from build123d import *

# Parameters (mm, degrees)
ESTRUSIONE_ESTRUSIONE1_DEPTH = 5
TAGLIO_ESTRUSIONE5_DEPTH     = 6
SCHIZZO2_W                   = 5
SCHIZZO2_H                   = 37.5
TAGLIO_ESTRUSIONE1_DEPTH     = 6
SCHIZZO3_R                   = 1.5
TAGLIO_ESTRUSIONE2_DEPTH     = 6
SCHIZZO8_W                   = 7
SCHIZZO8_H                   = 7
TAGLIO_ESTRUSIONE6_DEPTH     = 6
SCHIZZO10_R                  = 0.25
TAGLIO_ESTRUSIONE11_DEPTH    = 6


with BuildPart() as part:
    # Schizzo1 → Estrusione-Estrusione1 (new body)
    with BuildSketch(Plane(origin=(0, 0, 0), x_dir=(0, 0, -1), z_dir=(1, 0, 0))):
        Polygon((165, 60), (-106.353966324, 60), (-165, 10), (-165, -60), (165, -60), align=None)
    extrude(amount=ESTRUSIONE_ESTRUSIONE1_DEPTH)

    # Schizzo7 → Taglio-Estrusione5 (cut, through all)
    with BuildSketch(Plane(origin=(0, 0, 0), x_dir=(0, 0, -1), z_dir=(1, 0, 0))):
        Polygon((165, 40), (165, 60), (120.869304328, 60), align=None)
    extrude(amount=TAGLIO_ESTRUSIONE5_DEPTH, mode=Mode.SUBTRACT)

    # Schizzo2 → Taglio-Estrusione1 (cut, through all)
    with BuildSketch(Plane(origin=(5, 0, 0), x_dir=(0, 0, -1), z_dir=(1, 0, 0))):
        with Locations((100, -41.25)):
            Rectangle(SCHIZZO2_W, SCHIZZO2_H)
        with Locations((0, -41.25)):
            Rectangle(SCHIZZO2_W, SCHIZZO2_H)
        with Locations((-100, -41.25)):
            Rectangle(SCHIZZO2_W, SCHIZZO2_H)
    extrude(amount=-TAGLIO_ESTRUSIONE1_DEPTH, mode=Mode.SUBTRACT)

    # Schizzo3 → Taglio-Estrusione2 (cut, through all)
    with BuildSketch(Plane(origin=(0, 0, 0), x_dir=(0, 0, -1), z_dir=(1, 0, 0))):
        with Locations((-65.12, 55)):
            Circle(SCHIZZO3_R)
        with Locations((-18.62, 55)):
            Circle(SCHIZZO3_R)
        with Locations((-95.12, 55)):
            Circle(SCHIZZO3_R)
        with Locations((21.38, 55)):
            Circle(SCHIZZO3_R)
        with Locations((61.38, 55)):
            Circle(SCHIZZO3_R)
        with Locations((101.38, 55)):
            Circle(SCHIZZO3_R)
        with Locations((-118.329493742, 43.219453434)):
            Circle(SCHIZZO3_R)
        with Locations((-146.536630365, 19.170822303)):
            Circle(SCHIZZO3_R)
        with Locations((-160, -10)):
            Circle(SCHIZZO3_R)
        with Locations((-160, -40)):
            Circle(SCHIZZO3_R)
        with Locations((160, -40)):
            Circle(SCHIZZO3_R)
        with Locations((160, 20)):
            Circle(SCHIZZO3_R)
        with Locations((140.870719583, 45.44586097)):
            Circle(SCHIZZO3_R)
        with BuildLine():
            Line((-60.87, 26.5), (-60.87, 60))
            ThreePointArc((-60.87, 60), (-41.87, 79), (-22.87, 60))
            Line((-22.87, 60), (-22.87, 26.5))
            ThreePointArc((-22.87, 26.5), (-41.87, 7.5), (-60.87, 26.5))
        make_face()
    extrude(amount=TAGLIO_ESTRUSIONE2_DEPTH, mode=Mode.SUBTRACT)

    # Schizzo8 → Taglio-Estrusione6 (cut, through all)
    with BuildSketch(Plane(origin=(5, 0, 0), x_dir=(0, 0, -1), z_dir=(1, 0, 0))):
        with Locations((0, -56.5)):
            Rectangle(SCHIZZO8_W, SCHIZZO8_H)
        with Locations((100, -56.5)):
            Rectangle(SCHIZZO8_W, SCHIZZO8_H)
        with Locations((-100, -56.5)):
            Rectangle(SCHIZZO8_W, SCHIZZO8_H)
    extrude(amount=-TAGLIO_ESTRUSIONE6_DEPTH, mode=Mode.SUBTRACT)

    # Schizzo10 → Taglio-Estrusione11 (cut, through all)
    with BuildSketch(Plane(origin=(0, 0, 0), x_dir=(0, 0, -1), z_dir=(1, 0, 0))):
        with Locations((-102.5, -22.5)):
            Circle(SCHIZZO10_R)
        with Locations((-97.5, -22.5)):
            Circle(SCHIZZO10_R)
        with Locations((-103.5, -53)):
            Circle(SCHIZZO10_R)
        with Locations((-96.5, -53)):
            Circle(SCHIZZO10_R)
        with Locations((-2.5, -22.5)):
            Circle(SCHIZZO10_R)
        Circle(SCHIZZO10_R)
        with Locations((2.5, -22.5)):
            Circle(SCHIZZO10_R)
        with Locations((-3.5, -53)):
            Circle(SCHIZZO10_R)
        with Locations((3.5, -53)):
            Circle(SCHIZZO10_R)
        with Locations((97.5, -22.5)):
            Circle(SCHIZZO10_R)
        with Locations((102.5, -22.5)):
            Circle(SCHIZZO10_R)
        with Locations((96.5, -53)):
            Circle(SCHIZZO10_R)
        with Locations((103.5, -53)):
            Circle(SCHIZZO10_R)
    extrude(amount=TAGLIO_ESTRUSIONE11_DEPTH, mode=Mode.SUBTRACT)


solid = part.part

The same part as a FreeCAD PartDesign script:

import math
import FreeCAD as App
import Part
import Sketcher
Q = App.Units.Quantity


def add_polygon(sketch, points):
    """Adds a closed chain of lines whose ends are joined by coincident constraints."""
    first, n = sketch.GeometryCount, len(points)
    for a, b in zip(points, points[1:] + points[:1]):
        sketch.addGeometry(Part.LineSegment(App.Vector(*a, 0), App.Vector(*b, 0)), False)
    for i in range(n):
        sketch.addConstraint(Sketcher.Constraint("Coincident", first + i, 2, first + (i + 1) % n, 1))

doc = App.newDocument("Part")
body = doc.addObject("PartDesign::Body", "Body")

# Sketch on YZ plane
sketch1 = body.newObject("Sketcher::SketchObject", "Sketch")
sketch1.AttachmentSupport = (doc.getObject("YZ_Plane"), [""])
sketch1.MapMode = "FlatFace"
add_polygon(sketch1, [(60, -165), (60, 106), (10, 165), (-60, 165), (-60, -165)])  # lines 0-4
sketch1.addConstraint([
    Sketcher.Constraint("Vertical", 0),
    Sketcher.Constraint("Horizontal", 2),
    Sketcher.Constraint("Vertical", 3),
    Sketcher.Constraint("Horizontal", 4),
    Sketcher.Constraint("Symmetric", 2, 2, 4, 2, -1, 1),
    Sketcher.Constraint("DistanceX", 2, 2, 2, 1, 70.0),
    Sketcher.Constraint("DistanceX", 4, 1, 4, 2, 120.0),
    Sketcher.Constraint("DistanceY", 3, 2, 3, 1, 330.0),
    Sketcher.Constraint("Angle", 1, Q("130.45 deg")),
])
pad1 = body.newObject("PartDesign::Pad", "Pad")
pad1.Profile = sketch1
pad1.Length = 5

# Sketch on YZ plane
sketch2 = body.newObject("Sketcher::SketchObject", "Sketch001")
sketch2.AttachmentSupport = (doc.getObject("YZ_Plane"), [""])
sketch2.MapMode = "FlatFace"
add_polygon(sketch2, [(40, -165), (60, -165), (60, -121)])  # lines 0-2
sketch2.addConstraint([
    Sketcher.Constraint("Horizontal", 0),
    Sketcher.Constraint("Vertical", 1),
    Sketcher.Constraint("DistanceX", 0, 1, 0, 2, 20.0),
    Sketcher.Constraint("DistanceX", -1, 1, 0, 2, 60.0),
    Sketcher.Constraint("DistanceY", 0, 2, -1, 1, 165.0),
    Sketcher.Constraint("Angle", 2, Q("-114.38 deg")),
])
pocket1 = body.newObject("PartDesign::Pocket", "Pocket")
pocket1.Profile = sketch2
pocket1.Type = "ThroughAll"
pocket1.Reversed = True

# Sketch on YZ plane
sketch3 = body.newObject("Sketcher::SketchObject", "Sketch002")
sketch3.AttachmentSupport = (doc.getObject("YZ_Plane"), [""])
sketch3.MapMode = "FlatFace"
sketch3.AttachmentOffset = App.Placement(App.Vector(0, 0, 5), App.Rotation())
add_polygon(sketch3, [(-22, -98), (-60, -98), (-60, -102), (-22, -102)])  # lines 0-3
add_polygon(sketch3, [(-22, 2), (-60, 2), (-60, -2), (-22, -2)])  # lines 4-7
add_polygon(sketch3, [(-22, 102), (-60, 102), (-60, 98), (-22, 98)])  # lines 8-11
sketch3.addConstraint([
    Sketcher.Constraint("Horizontal", 0),
    Sketcher.Constraint("Vertical", 1),
    Sketcher.Constraint("Horizontal", 2),
    Sketcher.Constraint("Vertical", 3),
    Sketcher.Constraint("Horizontal", 4),
    Sketcher.Constraint("Vertical", 5),
    Sketcher.Constraint("Horizontal", 6),
    Sketcher.Constraint("Vertical", 7),
    Sketcher.Constraint("Horizontal", 8),
    Sketcher.Constraint("Vertical", 9),
    Sketcher.Constraint("Horizontal", 10),
    Sketcher.Constraint("Vertical", 11),
    Sketcher.Constraint("Symmetric", 1, 2, 8, 2, -1),
    Sketcher.Constraint("Symmetric", 3, 2, 10, 2, -1),
    Sketcher.Constraint("Vertical", 1, 2, 4, 2),
    Sketcher.Constraint("Vertical", 3, 2, 6, 2),
    Sketcher.Constraint("Equal", 3, 5),
    Sketcher.Constraint("DistanceY", 1, 2, 1, 1, 5.0),
    Sketcher.Constraint("DistanceX", 0, 2, 0, 1, 37.5),
    Sketcher.Constraint("DistanceX", 0, 2, -1, 1, 60.0),
    Sketcher.Constraint("DistanceY", 0, 2, 4, 2, 100.0),
    Sketcher.Constraint("DistanceY", 4, 2, 8, 2, 100.0),
])
pocket2 = body.newObject("PartDesign::Pocket", "Pocket001")
pocket2.Profile = sketch3
pocket2.Type = "ThroughAll"

# Sketch on YZ plane
sketch4 = body.newObject("Sketcher::SketchObject", "Sketch003")
sketch4.AttachmentSupport = (doc.getObject("YZ_Plane"), [""])
sketch4.MapMode = "FlatFace"
sketch4.addGeometry([
    Part.Circle(App.Vector(55, 65.1, 0), App.Vector(0, 0, 1), 1.5),  # 0
    Part.Circle(App.Vector(55, 18.6, 0), App.Vector(0, 0, 1), 1.5),  # 1
    Part.Circle(App.Vector(55, 95.1, 0), App.Vector(0, 0, 1), 1.5),  # 2
    Part.Circle(App.Vector(55, -21.4, 0), App.Vector(0, 0, 1), 1.5),  # 3
    Part.Circle(App.Vector(55, -61.4, 0), App.Vector(0, 0, 1), 1.5),  # 4
    Part.Circle(App.Vector(55, -101.4, 0), App.Vector(0, 0, 1), 1.5),  # 5
    Part.Circle(App.Vector(43.2, 118.3, 0), App.Vector(0, 0, 1), 1.5),  # 6
    Part.Circle(App.Vector(19.2, 146.5, 0), App.Vector(0, 0, 1), 1.5),  # 7
    Part.Circle(App.Vector(-10, 160, 0), App.Vector(0, 0, 1), 1.5),  # 8
    Part.Circle(App.Vector(-40, 160, 0), App.Vector(0, 0, 1), 1.5),  # 9
    Part.Circle(App.Vector(-40, -160, 0), App.Vector(0, 0, 1), 1.5),  # 10
    Part.Circle(App.Vector(20, -160, 0), App.Vector(0, 0, 1), 1.5),  # 11
    Part.Circle(App.Vector(45.4, -140.9, 0), App.Vector(0, 0, 1), 1.5),  # 12
    Part.LineSegment(App.Vector(60, 60.9, 0), App.Vector(26.5, 60.9, 0)),  # 13
    Part.ArcOfCircle(Part.Circle(App.Vector(26.5, 41.9, 0), App.Vector(0, 0, 1), 19), math.radians(90), math.radians(270)),  # 14
    Part.LineSegment(App.Vector(26.5, 22.9, 0), App.Vector(60, 22.9, 0)),  # 15
    Part.ArcOfCircle(Part.Circle(App.Vector(60, 41.9, 0), App.Vector(0, 0, 1), 19), math.radians(-90), math.radians(90)),  # 16
], False)
sketch4.addConstraint([
    Sketcher.Constraint("Tangent", 13, 2, 14, 1),
    Sketcher.Constraint("Tangent", 14, 2, 15, 1),
    Sketcher.Constraint("Tangent", 15, 2, 16, 1),
    Sketcher.Constraint("Tangent", 16, 2, 13, 1),
    Sketcher.Constraint("Horizontal", 13),
    Sketcher.Constraint("Horizontal", 15),
    Sketcher.Constraint("Equal", 0, 1),
    Sketcher.Constraint("Equal", 1, 2),
    Sketcher.Constraint("Equal", 2, 3),
    Sketcher.Constraint("Equal", 3, 4),
    Sketcher.Constraint("Equal", 4, 5),
    Sketcher.Constraint("Equal", 5, 6),
    Sketcher.Constraint("Equal", 6, 7),
    Sketcher.Constraint("Equal", 7, 8),
    Sketcher.Constraint("Equal", 8, 9),
    Sketcher.Constraint("Equal", 9, 10),
    Sketcher.Constraint("Equal", 10, 11),
    Sketcher.Constraint("Equal", 11, 12),
    Sketcher.Constraint("Symmetric", 9, 3, 10, 3, -1),
    Sketcher.Constraint("Horizontal", 8, 3, 9, 3),
    Sketcher.Constraint("Horizontal", 10, 3, 11, 3),
    Sketcher.Constraint("Vertical", 0, 3, 1, 3),
    Sketcher.Constraint("Vertical", 1, 3, 2, 3),
    Sketcher.Constraint("Vertical", 2, 3, 3, 3),
    Sketcher.Constraint("Vertical", 3, 3, 4, 3),
    Sketcher.Constraint("Vertical", 4, 3, 5, 3),
    Sketcher.Constraint("Diameter", 0, 3.0),
    Sketcher.Constraint("Radius", 14, 19.0),
    Sketcher.Constraint("DistanceX", 13, 2, 13, 1, 33.5),
    Sketcher.Constraint("DistanceX", -1, 1, 0, 3, 55.0),
    Sketcher.Constraint("DistanceX", 8, 3, -1, 1, 10.0),
    Sketcher.Constraint("DistanceY", -1, 1, 8, 3, 160.0),
    Sketcher.Constraint("DistanceX", 9, 3, -1, 1, 40.0),
    Sketcher.Constraint("DistanceX", -1, 1, 11, 3, 20.0),
    Sketcher.Constraint("DistanceX", -1, 1, 16, 3, 60.0),
    Sketcher.Constraint("DistanceY", 0, 3, 2, 3, 30.0),
    Sketcher.Constraint("DistanceY", 3, 3, 1, 3, 40.0),
    Sketcher.Constraint("DistanceY", 4, 3, 3, 3, 40.0),
    Sketcher.Constraint("DistanceY", 5, 3, 4, 3, 40.0),
    Sketcher.Constraint("DistanceY", 1, 3, 0, 3, 46.5),
    Sketcher.Constraint("DistanceY", -1, 1, 0, 3, 65.12),
    Sketcher.Constraint("DistanceY", -1, 1, 14, 3, 41.87),
    Sketcher.Constraint("DistanceY", -1, 1, 7, 3, 146.53663),
    Sketcher.Constraint("DistanceX", -1, 1, 12, 3, 45.445861),
    Sketcher.Constraint("DistanceY", 12, 3, -1, 1, 140.87072),
    Sketcher.Constraint("DistanceX", 7, 3, 6, 3, 24.048631),
    Sketcher.Constraint("DistanceX", -1, 1, 6, 3, 43.219453),
    Sketcher.Constraint("DistanceY", -1, 1, 6, 3, 118.329494),
])
pocket3 = body.newObject("PartDesign::Pocket", "Pocket002")
pocket3.Profile = sketch4
pocket3.Type = "ThroughAll"
pocket3.Reversed = True

# Sketch on YZ plane
sketch5 = body.newObject("Sketcher::SketchObject", "Sketch004")
sketch5.AttachmentSupport = (doc.getObject("YZ_Plane"), [""])
sketch5.MapMode = "FlatFace"
sketch5.AttachmentOffset = App.Placement(App.Vector(0, 0, 5), App.Rotation())
add_polygon(sketch5, [(-53, 4), (-60, 4), (-60, -4), (-53, -4)])  # lines 0-3
add_polygon(sketch5, [(-53, -96), (-60, -96), (-60, -104), (-53, -104)])  # lines 4-7
add_polygon(sketch5, [(-53, 104), (-60, 104), (-60, 96), (-53, 96)])  # lines 8-11
sketch5.addConstraint([
    Sketcher.Constraint("Horizontal", 0),
    Sketcher.Constraint("Vertical", 1),
    Sketcher.Constraint("Horizontal", 2),
    Sketcher.Constraint("Vertical", 3),
    Sketcher.Constraint("Horizontal", 4),
    Sketcher.Constraint("Vertical", 5),
    Sketcher.Constraint("Horizontal", 6),
    Sketcher.Constraint("Vertical", 7),
    Sketcher.Constraint("Horizontal", 8),
    Sketcher.Constraint("Vertical", 9),
    Sketcher.Constraint("Horizontal", 10),
    Sketcher.Constraint("Vertical", 11),
    Sketcher.Constraint("Symmetric", 5, 2, 8, 2, -1),
    Sketcher.Constraint("Symmetric", 7, 2, 10, 2, -1),
    Sketcher.Constraint("Vertical", 1, 2, 4, 2),
    Sketcher.Constraint("Vertical", 3, 2, 6, 2),
    Sketcher.Constraint("Equal", 10, 1),
    Sketcher.Constraint("Equal", 3, 5),
    Sketcher.Constraint("DistanceX", 0, 2, 0, 1, 7.0),
    Sketcher.Constraint("DistanceX", 0, 2, -1, 1, 60.0),
    Sketcher.Constraint("DistanceY", 4, 2, 1, 2, 93.0),
    Sketcher.Constraint("DistanceY", 0, 2, 8, 2, 100.0),
])
pocket4 = body.newObject("PartDesign::Pocket", "Pocket003")
pocket4.Profile = sketch5
pocket4.Type = "ThroughAll"

# Sketch on YZ plane
sketch6 = body.newObject("Sketcher::SketchObject", "Sketch005")
sketch6.AttachmentSupport = (doc.getObject("YZ_Plane"), [""])
sketch6.MapMode = "FlatFace"
sketch6.addGeometry([
    Part.Circle(App.Vector(-22.5, 102.5, 0), App.Vector(0, 0, 1), 0.25),  # 0
    Part.Circle(App.Vector(-22.5, 97.5, 0), App.Vector(0, 0, 1), 0.25),  # 1
    Part.Circle(App.Vector(-53, 103.5, 0), App.Vector(0, 0, 1), 0.25),  # 2
    Part.Circle(App.Vector(-53, 96.5, 0), App.Vector(0, 0, 1), 0.25),  # 3
    Part.Circle(App.Vector(-22.5, 2.5, 0), App.Vector(0, 0, 1), 0.25),  # 4
    Part.Circle(App.Vector(0, 0, 0), App.Vector(0, 0, 1), 0.25),  # 5
    Part.Circle(App.Vector(-22.5, -2.5, 0), App.Vector(0, 0, 1), 0.25),  # 6
    Part.Circle(App.Vector(-53, 3.5, 0), App.Vector(0, 0, 1), 0.25),  # 7
    Part.Circle(App.Vector(-53, -3.5, 0), App.Vector(0, 0, 1), 0.25),  # 8
    Part.Circle(App.Vector(-22.5, -97.5, 0), App.Vector(0, 0, 1), 0.25),  # 9
    Part.Circle(App.Vector(-22.5, -102.5, 0), App.Vector(0, 0, 1), 0.25),  # 10
    Part.Circle(App.Vector(-53, -96.5, 0), App.Vector(0, 0, 1), 0.25),  # 11
    Part.Circle(App.Vector(-53, -103.5, 0), App.Vector(0, 0, 1), 0.25),  # 12
], False)
sketch6.addConstraint([
    Sketcher.Constraint("Coincident", 5, 3, -1, 1),
    Sketcher.Constraint("Equal", 0, 1),
    Sketcher.Constraint("Equal", 1, 2),
    Sketcher.Constraint("Equal", 2, 3),
    Sketcher.Constraint("Equal", 3, 4),
    Sketcher.Constraint("Equal", 4, 5),
    Sketcher.Constraint("Equal", 5, 6),
    Sketcher.Constraint("Equal", 6, 7),
    Sketcher.Constraint("Equal", 7, 8),
    Sketcher.Constraint("Equal", 8, 9),
    Sketcher.Constraint("Equal", 9, 10),
    Sketcher.Constraint("Equal", 10, 11),
    Sketcher.Constraint("Equal", 11, 12),
    Sketcher.Constraint("Symmetric", 4, 3, 6, 3, -1),
    Sketcher.Constraint("Symmetric", 7, 3, 8, 3, -1),
    Sketcher.Constraint("Symmetric", 1, 3, 9, 3, -1),
    Sketcher.Constraint("Symmetric", 0, 3, 10, 3, -1),
    Sketcher.Constraint("Symmetric", 3, 3, 11, 3, -1),
    Sketcher.Constraint("Symmetric", 2, 3, 12, 3, -1),
    Sketcher.Constraint("Vertical", 0, 3, 1, 3),
    Sketcher.Constraint("Vertical", 2, 3, 3, 3),
    Sketcher.Constraint("Vertical", 1, 3, 4, 3),
    Sketcher.Constraint("Vertical", 3, 3, 7, 3),
    Sketcher.Constraint("Diameter", 0, 0.5),
    Sketcher.Constraint("DistanceX", 2, 3, -1, 1, 53.0),
    Sketcher.Constraint("DistanceY", 1, 3, 0, 3, 5.0),
    Sketcher.Constraint("DistanceY", 0, 3, 2, 3, 1.0),
    Sketcher.Constraint("DistanceY", 3, 3, 2, 3, 7.0),
    Sketcher.Constraint("DistanceY", 4, 3, 1, 3, 95.0),
    Sketcher.Constraint("DistanceY", 6, 3, 4, 3, 5.0),
    Sketcher.Constraint("DistanceY", 4, 3, 7, 3, 1.0),
    Sketcher.Constraint("DistanceX", 0, 3, -1, 1, 22.5),
])
pocket5 = body.newObject("PartDesign::Pocket", "Pocket004")
pocket5.Profile = sketch6
pocket5.Type = "ThroughAll"
pocket5.Reversed = True

doc.recompute()
